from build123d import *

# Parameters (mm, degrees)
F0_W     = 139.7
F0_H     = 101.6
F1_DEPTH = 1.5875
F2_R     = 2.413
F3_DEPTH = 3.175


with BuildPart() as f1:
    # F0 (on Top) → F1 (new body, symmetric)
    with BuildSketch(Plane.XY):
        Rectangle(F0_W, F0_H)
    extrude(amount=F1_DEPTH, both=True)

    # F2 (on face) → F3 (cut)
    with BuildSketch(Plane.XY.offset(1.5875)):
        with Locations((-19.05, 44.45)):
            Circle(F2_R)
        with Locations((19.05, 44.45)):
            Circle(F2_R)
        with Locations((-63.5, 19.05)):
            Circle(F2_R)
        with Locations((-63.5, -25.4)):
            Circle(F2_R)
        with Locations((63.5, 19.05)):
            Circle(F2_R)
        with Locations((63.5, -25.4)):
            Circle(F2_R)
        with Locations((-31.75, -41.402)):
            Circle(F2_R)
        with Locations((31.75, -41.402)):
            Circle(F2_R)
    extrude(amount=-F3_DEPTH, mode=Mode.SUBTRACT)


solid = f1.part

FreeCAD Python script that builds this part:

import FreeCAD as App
import Part
import Sketcher
from FreeCAD import Vector
Q = App.Units.Quantity

doc = App.newDocument("Part")
body = doc.addObject("PartDesign::Body", "Body")

# Sketch on XY plane
sketch1 = doc.addObject("Sketcher::SketchObject", "Sketch")
body.addObject(sketch1)
sketch1.AttachmentSupport = (doc.XY_Plane, [""])
sketch1.MapMode = "FlatFace"
sketch1.addGeometry([
    Part.LineSegment(Vector(-70, 51, 0), Vector(-70, -51, 0)),
    Part.LineSegment(Vector(-70, -51, 0), Vector(70, -51, 0)),
    Part.LineSegment(Vector(70, -51, 0), Vector(70, 51, 0)),
    Part.LineSegment(Vector(70, 51, 0), Vector(-70, 51, 0)),
], False)
sketch1.addConstraint([
    Sketcher.Constraint("Coincident", 0, 2, 1, 1),
    Sketcher.Constraint("Coincident", 1, 2, 2, 1),
    Sketcher.Constraint("Coincident", 2, 2, 3, 1),
    Sketcher.Constraint("Coincident", 3, 2, 0, 1),
    Sketcher.Constraint("Vertical", 0),
    Sketcher.Constraint("Horizontal", 1),
    Sketcher.Constraint("Vertical", 2),
    Sketcher.Constraint("Horizontal", 3),
    Sketcher.Constraint("Symmetric", 0, 2, 2, 2, -1, 1),
    Sketcher.Constraint("DistanceY", 0, 2, 0, 1, Q("4 in")),
    Sketcher.Constraint("DistanceX", 1, 1, 1, 2, Q("5.5 in")),
])
pad1 = doc.addObject("PartDesign::Pad", "Pad")
body.addObject(pad1)
pad1.Profile = sketch1
pad1.Length = Q("0.125 in")
pad1.Midplane = True

# Sketch on XY plane
sketch2 = doc.addObject("Sketcher::SketchObject", "Sketch001")
body.addObject(sketch2)
sketch2.AttachmentSupport = (doc.XY_Plane, [""])
sketch2.MapMode = "FlatFace"
sketch2.AttachmentOffset = App.Placement(Vector(0, 0, 0.0625 * 25.4), App.Rotation())
sketch2.addGeometry([
    Part.Circle(Vector(-19.1, 44.5, 0), Vector(0, 0, 1), 2.4),  # 0
    Part.Circle(Vector(19.1, 44.5, 0), Vector(0, 0, 1), 2.4),  # 1
    Part.Circle(Vector(-63.5, 19.1, 0), Vector(0, 0, 1), 2.4),  # 2
    Part.Circle(Vector(-63.5, -25.4, 0), Vector(0, 0, 1), 2.4),  # 3
    Part.Circle(Vector(63.5, 19.1, 0), Vector(0, 0, 1), 2.4),  # 4
    Part.Circle(Vector(63.5, -25.4, 0), Vector(0, 0, 1), 2.4),  # 5
    Part.Circle(Vector(-31.8, -41.4, 0), Vector(0, 0, 1), 2.4),  # 6
    Part.Circle(Vector(31.8, -41.4, 0), Vector(0, 0, 1), 2.4),  # 7
], False)
sketch2.addConstraint([
    Sketcher.Constraint("Equal", 0, 1),
    Sketcher.Constraint("Equal", 1, 2),
    Sketcher.Constraint("Equal", 2, 3),
    Sketcher.Constraint("Equal", 3, 4),
    Sketcher.Constraint("Equal", 4, 5),
    Sketcher.Constraint("Equal", 5, 6),
    Sketcher.Constraint("Equal", 6, 7),
    Sketcher.Constraint("Symmetric", 0, 3, 1, 3, -2),
    Sketcher.Constraint("Symmetric", 2, 3, 4, 3, -2),
    Sketcher.Constraint("Symmetric", 3, 3, 5, 3, -2),
    Sketcher.Constraint("Symmetric", 6, 3, 7, 3, -2),
    Sketcher.Constraint("Vertical", 2, 3, 3, 3),
    Sketcher.Constraint("Diameter", 0, Q("0.19 in")),
    Sketcher.Constraint("DistanceY", 3, 3, -1, 1, Q("1 in")),
    Sketcher.Constraint("DistanceY", 2, 3, 0, 3, Q("1 in")),
    Sketcher.Constraint("DistanceX", 2, 3, 4, 3, Q("5 in")),
    Sketcher.Constraint("DistanceX", 6, 3, 1, 3, Q("2 in")),
    Sketcher.Constraint("DistanceX", 0, 3, 1, 3, Q("1.5 in")),
    Sketcher.Constraint("DistanceY", -1, 1, 0, 3, Q("1.75 in")),
    Sketcher.Constraint("DistanceY", 6, 3, -1, 1, Q("1.63 in")),
])
pocket1 = doc.addObject("PartDesign::Pocket", "Pocket")
body.addObject(pocket1)
pocket1.Profile = sketch2
pocket1.Length = Q("0.125 in")

doc.recompute()
